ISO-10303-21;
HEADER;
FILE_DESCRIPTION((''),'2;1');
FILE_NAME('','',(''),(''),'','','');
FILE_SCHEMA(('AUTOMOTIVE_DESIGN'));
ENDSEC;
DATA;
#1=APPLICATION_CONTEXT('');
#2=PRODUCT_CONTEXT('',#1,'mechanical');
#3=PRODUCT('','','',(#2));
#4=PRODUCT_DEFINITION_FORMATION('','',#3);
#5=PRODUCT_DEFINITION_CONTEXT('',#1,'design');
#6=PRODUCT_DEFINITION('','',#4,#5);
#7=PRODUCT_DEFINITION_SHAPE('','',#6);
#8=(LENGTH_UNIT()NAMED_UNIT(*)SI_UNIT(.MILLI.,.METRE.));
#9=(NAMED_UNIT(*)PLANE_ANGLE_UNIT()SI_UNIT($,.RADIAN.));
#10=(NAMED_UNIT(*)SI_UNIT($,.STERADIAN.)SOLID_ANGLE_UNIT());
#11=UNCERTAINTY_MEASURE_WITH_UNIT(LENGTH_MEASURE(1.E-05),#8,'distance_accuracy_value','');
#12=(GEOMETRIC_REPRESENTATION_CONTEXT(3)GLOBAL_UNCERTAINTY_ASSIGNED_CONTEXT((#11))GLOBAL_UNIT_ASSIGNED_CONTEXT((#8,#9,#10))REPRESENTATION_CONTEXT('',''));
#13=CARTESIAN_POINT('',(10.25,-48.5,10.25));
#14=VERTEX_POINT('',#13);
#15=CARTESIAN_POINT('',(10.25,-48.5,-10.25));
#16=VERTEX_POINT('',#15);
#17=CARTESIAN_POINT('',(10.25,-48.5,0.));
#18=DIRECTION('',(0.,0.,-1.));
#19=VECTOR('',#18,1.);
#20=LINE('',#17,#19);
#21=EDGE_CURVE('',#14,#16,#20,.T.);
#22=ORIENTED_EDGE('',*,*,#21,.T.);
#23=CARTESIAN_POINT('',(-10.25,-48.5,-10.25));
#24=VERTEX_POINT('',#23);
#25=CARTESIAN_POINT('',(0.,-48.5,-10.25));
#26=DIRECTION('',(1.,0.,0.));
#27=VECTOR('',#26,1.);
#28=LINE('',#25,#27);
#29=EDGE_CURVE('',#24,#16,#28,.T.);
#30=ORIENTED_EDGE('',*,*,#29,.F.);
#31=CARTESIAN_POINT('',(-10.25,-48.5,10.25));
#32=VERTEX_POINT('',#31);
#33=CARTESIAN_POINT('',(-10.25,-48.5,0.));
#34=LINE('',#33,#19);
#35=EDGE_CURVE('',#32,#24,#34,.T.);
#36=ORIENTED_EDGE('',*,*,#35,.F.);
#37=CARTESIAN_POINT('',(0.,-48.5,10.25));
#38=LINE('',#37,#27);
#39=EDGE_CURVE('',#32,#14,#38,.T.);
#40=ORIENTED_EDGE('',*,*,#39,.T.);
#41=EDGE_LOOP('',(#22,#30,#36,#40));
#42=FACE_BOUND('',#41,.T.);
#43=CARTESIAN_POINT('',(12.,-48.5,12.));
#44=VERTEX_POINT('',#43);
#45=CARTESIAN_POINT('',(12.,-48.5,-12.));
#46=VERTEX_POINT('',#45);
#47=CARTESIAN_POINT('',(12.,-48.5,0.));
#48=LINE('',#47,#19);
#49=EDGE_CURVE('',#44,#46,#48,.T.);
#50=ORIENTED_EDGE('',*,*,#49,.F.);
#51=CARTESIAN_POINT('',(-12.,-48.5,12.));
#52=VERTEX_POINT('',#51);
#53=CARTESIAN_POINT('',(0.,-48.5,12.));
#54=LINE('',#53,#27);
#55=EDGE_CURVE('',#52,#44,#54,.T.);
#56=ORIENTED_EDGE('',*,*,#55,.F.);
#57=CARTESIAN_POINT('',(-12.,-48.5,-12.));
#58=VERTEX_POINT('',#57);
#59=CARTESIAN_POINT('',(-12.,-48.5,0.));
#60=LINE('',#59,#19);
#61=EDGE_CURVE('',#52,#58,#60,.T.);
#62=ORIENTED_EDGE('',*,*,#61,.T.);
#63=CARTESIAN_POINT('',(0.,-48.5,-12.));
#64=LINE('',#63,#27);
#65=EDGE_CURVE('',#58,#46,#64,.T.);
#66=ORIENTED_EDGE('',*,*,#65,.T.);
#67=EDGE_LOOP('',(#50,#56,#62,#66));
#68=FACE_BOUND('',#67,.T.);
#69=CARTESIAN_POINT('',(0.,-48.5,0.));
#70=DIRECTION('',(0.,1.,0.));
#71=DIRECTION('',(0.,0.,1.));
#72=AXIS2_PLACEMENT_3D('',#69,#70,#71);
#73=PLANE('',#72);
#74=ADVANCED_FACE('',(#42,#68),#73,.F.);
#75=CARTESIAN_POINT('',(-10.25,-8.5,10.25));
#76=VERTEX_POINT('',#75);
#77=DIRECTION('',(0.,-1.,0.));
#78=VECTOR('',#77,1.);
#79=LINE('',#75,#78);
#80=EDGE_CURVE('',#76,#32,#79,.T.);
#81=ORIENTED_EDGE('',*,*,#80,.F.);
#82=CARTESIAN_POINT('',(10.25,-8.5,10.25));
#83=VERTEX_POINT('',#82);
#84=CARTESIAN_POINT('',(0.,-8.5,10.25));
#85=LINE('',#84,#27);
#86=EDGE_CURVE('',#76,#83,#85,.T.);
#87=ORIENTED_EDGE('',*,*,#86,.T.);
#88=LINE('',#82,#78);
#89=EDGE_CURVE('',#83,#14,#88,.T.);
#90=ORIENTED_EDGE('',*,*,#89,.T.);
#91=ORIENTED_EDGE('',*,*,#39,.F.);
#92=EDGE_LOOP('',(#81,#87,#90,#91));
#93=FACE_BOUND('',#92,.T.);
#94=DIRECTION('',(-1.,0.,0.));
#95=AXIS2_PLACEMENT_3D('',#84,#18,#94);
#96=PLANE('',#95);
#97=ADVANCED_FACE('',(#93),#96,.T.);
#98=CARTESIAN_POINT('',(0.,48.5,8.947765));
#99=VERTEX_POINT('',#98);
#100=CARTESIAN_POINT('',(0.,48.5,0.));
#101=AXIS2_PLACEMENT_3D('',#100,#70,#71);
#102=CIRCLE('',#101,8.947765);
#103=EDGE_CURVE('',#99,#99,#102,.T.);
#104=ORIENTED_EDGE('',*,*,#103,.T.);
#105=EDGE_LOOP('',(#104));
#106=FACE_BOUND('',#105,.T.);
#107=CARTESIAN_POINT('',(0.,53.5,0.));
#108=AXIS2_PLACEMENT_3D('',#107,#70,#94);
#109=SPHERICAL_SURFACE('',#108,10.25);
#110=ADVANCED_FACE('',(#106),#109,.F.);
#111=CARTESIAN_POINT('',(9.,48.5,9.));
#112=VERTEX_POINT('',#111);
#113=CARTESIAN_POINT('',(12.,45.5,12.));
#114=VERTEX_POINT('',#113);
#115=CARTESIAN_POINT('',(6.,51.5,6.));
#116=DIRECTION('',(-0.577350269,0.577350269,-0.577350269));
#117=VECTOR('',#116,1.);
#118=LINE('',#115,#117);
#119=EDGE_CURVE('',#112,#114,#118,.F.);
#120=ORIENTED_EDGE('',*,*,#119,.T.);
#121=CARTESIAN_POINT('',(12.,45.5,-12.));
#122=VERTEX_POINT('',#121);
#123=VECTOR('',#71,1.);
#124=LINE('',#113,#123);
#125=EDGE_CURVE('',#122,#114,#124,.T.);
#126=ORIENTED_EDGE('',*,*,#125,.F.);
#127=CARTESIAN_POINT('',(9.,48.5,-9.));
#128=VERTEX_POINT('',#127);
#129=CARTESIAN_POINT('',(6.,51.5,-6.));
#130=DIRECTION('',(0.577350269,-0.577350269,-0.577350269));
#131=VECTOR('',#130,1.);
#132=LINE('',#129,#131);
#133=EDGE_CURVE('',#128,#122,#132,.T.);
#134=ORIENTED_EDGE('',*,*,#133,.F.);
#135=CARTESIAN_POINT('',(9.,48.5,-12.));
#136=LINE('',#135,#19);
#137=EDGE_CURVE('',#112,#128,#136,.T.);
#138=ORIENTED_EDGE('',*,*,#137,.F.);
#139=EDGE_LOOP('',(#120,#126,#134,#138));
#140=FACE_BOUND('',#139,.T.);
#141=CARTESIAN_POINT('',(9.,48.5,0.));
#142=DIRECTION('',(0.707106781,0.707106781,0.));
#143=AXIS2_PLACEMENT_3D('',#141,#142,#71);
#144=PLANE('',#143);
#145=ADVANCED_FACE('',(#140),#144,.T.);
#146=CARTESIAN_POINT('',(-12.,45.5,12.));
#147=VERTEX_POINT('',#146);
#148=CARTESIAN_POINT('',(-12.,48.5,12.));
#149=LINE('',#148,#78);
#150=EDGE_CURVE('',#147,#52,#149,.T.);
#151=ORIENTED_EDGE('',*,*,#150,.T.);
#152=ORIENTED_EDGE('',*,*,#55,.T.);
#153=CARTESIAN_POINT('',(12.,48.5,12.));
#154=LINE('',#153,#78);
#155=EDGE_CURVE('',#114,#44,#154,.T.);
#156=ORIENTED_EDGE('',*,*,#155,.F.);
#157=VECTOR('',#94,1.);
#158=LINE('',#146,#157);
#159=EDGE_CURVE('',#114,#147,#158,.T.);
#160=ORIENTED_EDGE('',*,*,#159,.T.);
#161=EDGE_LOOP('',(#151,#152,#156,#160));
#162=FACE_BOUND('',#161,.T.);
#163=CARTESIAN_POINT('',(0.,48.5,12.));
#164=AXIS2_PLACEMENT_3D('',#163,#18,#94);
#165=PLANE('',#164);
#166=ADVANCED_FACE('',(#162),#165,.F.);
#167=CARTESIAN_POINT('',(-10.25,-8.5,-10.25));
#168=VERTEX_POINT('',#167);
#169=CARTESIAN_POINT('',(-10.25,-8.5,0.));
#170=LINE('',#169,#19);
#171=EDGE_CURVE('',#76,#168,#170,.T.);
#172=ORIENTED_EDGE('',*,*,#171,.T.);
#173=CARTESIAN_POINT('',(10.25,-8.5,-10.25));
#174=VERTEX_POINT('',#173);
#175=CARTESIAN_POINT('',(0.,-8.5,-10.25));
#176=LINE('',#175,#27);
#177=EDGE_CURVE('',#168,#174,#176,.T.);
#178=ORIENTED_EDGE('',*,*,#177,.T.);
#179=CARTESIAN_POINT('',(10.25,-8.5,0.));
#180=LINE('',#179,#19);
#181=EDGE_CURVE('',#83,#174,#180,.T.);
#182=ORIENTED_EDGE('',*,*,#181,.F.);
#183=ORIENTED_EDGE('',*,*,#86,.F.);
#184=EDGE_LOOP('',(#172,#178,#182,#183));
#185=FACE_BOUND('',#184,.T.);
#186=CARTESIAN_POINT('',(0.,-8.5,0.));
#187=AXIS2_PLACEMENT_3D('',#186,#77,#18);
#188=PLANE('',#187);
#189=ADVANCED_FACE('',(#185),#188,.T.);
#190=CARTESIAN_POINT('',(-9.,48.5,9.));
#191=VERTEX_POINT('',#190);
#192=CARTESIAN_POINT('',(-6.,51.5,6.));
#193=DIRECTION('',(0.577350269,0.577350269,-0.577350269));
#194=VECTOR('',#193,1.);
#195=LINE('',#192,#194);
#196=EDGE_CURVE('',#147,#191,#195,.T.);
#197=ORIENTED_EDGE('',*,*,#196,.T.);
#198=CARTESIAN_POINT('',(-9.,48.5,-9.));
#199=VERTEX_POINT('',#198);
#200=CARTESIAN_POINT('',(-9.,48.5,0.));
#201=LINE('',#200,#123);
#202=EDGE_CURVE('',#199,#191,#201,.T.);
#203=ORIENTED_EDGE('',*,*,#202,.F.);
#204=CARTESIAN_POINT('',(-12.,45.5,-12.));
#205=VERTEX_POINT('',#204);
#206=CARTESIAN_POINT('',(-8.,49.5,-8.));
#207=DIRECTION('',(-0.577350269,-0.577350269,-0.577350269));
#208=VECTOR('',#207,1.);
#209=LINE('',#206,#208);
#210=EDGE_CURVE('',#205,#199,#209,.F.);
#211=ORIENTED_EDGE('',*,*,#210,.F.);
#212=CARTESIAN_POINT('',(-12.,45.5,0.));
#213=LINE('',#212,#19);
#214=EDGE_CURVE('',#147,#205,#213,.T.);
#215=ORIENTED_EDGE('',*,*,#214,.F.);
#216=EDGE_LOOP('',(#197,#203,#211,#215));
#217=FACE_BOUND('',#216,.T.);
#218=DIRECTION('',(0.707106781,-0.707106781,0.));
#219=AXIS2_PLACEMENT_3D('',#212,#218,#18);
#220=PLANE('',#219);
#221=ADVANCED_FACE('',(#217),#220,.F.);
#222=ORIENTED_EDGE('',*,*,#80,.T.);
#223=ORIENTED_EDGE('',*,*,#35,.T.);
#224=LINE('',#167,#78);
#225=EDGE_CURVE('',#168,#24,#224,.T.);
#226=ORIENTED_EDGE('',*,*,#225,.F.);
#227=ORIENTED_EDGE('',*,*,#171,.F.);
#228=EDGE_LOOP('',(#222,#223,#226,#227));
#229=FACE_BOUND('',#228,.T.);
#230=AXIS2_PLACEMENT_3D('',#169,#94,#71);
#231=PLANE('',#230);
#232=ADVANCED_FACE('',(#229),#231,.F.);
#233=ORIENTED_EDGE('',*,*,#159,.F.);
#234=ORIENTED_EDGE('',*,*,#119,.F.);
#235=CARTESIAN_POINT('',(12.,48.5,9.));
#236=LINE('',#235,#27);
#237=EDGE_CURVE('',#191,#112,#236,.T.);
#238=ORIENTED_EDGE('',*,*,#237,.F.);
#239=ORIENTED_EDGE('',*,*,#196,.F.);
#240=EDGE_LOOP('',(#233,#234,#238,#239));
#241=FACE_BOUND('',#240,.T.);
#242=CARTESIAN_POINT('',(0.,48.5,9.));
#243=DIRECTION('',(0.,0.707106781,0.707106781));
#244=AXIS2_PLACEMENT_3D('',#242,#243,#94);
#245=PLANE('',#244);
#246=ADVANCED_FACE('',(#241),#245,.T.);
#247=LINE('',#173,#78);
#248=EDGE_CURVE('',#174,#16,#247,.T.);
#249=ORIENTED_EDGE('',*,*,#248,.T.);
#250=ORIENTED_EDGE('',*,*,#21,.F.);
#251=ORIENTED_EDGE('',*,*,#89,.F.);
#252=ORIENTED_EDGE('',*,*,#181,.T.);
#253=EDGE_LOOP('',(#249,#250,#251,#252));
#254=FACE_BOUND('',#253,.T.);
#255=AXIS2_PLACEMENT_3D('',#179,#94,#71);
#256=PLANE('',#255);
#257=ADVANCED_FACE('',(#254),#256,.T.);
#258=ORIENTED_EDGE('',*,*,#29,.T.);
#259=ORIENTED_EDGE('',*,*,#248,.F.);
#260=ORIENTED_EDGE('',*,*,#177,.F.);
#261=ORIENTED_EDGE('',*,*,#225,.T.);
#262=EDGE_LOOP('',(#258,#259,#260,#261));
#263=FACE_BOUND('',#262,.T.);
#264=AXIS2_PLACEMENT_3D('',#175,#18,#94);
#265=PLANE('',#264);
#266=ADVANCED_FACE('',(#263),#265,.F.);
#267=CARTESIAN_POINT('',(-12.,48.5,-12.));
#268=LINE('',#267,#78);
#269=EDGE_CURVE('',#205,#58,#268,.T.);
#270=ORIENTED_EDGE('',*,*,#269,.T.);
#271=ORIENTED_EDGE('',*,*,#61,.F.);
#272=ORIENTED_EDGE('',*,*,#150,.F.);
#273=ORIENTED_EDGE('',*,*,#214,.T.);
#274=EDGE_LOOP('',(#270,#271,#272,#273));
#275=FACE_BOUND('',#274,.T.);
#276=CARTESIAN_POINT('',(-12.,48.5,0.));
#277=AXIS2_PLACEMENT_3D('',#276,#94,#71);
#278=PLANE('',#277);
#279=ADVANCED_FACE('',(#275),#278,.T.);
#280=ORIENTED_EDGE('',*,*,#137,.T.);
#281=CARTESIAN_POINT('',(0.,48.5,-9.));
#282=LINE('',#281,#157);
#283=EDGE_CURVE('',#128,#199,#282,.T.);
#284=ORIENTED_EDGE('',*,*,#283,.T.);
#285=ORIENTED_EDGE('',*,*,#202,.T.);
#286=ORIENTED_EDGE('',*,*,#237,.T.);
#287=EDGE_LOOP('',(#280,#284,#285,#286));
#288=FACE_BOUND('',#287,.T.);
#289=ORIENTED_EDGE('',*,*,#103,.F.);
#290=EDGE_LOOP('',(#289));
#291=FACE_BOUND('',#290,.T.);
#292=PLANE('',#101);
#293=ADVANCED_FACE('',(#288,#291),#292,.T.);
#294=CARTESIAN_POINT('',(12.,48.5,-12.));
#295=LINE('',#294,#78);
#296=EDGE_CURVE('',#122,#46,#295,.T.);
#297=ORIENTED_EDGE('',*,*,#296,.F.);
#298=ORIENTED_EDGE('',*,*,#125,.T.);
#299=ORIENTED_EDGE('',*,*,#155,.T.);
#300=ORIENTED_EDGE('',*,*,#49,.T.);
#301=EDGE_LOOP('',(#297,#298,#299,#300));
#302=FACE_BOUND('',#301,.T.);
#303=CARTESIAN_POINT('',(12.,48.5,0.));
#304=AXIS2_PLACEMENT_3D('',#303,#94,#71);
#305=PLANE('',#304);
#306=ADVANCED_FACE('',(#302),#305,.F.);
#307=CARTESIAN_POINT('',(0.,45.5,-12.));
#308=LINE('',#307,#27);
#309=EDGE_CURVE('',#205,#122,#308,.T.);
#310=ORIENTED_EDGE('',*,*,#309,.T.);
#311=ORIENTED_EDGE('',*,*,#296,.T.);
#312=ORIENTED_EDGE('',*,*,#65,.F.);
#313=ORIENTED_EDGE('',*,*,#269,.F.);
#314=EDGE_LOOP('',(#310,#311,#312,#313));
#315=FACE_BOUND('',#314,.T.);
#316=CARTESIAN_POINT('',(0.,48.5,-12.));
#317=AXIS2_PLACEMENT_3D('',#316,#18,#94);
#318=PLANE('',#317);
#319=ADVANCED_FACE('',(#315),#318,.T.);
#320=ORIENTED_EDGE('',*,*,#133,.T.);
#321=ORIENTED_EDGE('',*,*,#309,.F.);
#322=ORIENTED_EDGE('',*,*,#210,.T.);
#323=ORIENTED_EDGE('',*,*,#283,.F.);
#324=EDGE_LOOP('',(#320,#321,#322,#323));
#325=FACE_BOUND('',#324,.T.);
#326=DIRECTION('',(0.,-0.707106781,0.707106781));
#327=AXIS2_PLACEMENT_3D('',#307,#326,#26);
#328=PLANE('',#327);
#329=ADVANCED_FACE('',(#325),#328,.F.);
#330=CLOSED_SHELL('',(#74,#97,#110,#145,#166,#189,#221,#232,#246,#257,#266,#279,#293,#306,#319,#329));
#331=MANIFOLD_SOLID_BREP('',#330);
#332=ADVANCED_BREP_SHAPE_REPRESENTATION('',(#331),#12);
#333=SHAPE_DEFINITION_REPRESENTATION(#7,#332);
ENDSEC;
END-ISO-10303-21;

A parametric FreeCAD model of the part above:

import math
import FreeCAD as App
import Part
import Sketcher


def edges_at(feature, points):
    """Names of the edges that pass closest to the given points."""
    edges = feature.Shape.Edges
    near = lambda p: min(range(len(edges)), key=lambda i: edges[i].distToShape(Part.Vertex(*p))[0])
    return sorted({f"Edge{near(p) + 1}" for p in points})

doc = App.newDocument("Part")
body = doc.addObject("PartDesign::Body", "Body")

# Sketch on XZ plane
sketch1 = doc.addObject("Sketcher::SketchObject", "Sketch")
body.addObject(sketch1)
sketch1.AttachmentSupport = (doc.XZ_Plane, [""])
sketch1.MapMode = "FlatFace"
sketch1.addGeometry([
    Part.LineSegment(App.Vector(-12, -12, 0), App.Vector(-12, 12, 0)),
    Part.LineSegment(App.Vector(-12, 12, 0), App.Vector(12, 12, 0)),
    Part.LineSegment(App.Vector(12, 12, 0), App.Vector(12, -12, 0)),
    Part.LineSegment(App.Vector(12, -12, 0), App.Vector(-12, -12, 0)),
], False)
sketch1.addConstraint([
    Sketcher.Constraint("Coincident", 0, 2, 1, 1),
    Sketcher.Constraint("Coincident", 1, 2, 2, 1),
    Sketcher.Constraint("Coincident", 2, 2, 3, 1),
    Sketcher.Constraint("Coincident", 3, 2, 0, 1),
    Sketcher.Constraint("Vertical", 0),
    Sketcher.Constraint("Horizontal", 1),
    Sketcher.Constraint("Vertical", 2),
    Sketcher.Constraint("Horizontal", 3),
    Sketcher.Constraint("Symmetric", 0, 2, 2, 2, -1, 1),
    Sketcher.Constraint("Equal", 3, 0),
    Sketcher.Constraint("DistanceX", 1, 1, 1, 2, 24.0),
])
pad1 = doc.addObject("PartDesign::Pad", "Pad")
body.addObject(pad1)
pad1.Profile = sketch1
pad1.Length = 97
pad1.Midplane = True

# Sketch on XZ plane
sketch2 = doc.addObject("Sketcher::SketchObject", "Sketch001")
body.addObject(sketch2)
sketch2.AttachmentSupport = (doc.XZ_Plane, [""])
sketch2.MapMode = "FlatFace"
sketch2.AttachmentOffset = App.Placement(App.Vector(0, 0, 48.5), App.Rotation())
sketch2.addGeometry([
    Part.LineSegment(App.Vector(-10, -10, 0), App.Vector(-10, 10, 0)),
    Part.LineSegment(App.Vector(-10, 10, 0), App.Vector(10, 10, 0)),
    Part.LineSegment(App.Vector(10, 10, 0), App.Vector(10, -10, 0)),
    Part.LineSegment(App.Vector(10, -10, 0), App.Vector(-10, -10, 0)),
], False)
sketch2.addConstraint([
    Sketcher.Constraint("Coincident", 0, 2, 1, 1),
    Sketcher.Constraint("Coincident", 1, 2, 2, 1),
    Sketcher.Constraint("Coincident", 2, 2, 3, 1),
    Sketcher.Constraint("Coincident", 3, 2, 0, 1),
    Sketcher.Constraint("Vertical", 0),
    Sketcher.Constraint("Horizontal", 1),
    Sketcher.Constraint("Vertical", 2),
    Sketcher.Constraint("Horizontal", 3),
    Sketcher.Constraint("Symmetric", 0, 2, 2, 2, -1, 1),
    Sketcher.Constraint("Equal", 3, 0),
    Sketcher.Constraint("DistanceX", 1, 1, 1, 2, 20.5),
])
pocket1 = doc.addObject("PartDesign::Pocket", "Pocket")
body.addObject(pocket1)
pocket1.Profile = sketch2
pocket1.Length = 40

# Sketch on XY plane
sketch3 = doc.addObject("Sketcher::SketchObject", "Sketch002")
body.addObject(sketch3)
sketch3.AttachmentSupport = (doc.XY_Plane, [""])
sketch3.MapMode = "FlatFace"
sketch3.addGeometry([
    Part.LineSegment(App.Vector(0, 48, 0), App.Vector(-9, 48, 0)),
    Part.ArcOfCircle(Part.Circle(App.Vector(0, 54, 0), App.Vector(0, 0, 1), 10), math.radians(-151), math.radians(-90)),
    Part.LineSegment(App.Vector(0, 43, 0), App.Vector(0, 48, 0)),
], False)
sketch3.addConstraint([
    Sketcher.Constraint("Coincident", 0, 2, 1, 1),
    Sketcher.Constraint("Coincident", 1, 2, 2, 1),
    Sketcher.Constraint("Coincident", 2, 2, 0, 1),
    Sketcher.Constraint("Horizontal", 0),
    Sketcher.Constraint("Vertical", 2),
    Sketcher.Constraint("PointOnObject", 1, 3, -2),
    Sketcher.Constraint("PointOnObject", 1, 2, -2),
    Sketcher.Constraint("Radius", 1, 10.25),
    Sketcher.Constraint("DistanceY", 0, 2, 1, 3, 5.0),
    Sketcher.Constraint("DistanceY", -1, 1, 1, 3, 53.5),
])
groove = doc.addObject("PartDesign::Groove", "Groove")
body.addObject(groove)
groove.Profile = sketch3
groove.ReferenceAxis = (sketch3, ["V_Axis"])
groove.Angle = 360
doc.recompute()

chamfer = doc.addObject("PartDesign::Chamfer", "Chamfer")
body.addObject(chamfer)
chamfer.Base = (groove, edges_at(groove, [
    (12, 48.5, 0),
    (0, 48.5, -12),
    (-12, 48.5, 0),
    (0, 48.5, 12),
]))
chamfer.Size = 3

doc.recompute()
